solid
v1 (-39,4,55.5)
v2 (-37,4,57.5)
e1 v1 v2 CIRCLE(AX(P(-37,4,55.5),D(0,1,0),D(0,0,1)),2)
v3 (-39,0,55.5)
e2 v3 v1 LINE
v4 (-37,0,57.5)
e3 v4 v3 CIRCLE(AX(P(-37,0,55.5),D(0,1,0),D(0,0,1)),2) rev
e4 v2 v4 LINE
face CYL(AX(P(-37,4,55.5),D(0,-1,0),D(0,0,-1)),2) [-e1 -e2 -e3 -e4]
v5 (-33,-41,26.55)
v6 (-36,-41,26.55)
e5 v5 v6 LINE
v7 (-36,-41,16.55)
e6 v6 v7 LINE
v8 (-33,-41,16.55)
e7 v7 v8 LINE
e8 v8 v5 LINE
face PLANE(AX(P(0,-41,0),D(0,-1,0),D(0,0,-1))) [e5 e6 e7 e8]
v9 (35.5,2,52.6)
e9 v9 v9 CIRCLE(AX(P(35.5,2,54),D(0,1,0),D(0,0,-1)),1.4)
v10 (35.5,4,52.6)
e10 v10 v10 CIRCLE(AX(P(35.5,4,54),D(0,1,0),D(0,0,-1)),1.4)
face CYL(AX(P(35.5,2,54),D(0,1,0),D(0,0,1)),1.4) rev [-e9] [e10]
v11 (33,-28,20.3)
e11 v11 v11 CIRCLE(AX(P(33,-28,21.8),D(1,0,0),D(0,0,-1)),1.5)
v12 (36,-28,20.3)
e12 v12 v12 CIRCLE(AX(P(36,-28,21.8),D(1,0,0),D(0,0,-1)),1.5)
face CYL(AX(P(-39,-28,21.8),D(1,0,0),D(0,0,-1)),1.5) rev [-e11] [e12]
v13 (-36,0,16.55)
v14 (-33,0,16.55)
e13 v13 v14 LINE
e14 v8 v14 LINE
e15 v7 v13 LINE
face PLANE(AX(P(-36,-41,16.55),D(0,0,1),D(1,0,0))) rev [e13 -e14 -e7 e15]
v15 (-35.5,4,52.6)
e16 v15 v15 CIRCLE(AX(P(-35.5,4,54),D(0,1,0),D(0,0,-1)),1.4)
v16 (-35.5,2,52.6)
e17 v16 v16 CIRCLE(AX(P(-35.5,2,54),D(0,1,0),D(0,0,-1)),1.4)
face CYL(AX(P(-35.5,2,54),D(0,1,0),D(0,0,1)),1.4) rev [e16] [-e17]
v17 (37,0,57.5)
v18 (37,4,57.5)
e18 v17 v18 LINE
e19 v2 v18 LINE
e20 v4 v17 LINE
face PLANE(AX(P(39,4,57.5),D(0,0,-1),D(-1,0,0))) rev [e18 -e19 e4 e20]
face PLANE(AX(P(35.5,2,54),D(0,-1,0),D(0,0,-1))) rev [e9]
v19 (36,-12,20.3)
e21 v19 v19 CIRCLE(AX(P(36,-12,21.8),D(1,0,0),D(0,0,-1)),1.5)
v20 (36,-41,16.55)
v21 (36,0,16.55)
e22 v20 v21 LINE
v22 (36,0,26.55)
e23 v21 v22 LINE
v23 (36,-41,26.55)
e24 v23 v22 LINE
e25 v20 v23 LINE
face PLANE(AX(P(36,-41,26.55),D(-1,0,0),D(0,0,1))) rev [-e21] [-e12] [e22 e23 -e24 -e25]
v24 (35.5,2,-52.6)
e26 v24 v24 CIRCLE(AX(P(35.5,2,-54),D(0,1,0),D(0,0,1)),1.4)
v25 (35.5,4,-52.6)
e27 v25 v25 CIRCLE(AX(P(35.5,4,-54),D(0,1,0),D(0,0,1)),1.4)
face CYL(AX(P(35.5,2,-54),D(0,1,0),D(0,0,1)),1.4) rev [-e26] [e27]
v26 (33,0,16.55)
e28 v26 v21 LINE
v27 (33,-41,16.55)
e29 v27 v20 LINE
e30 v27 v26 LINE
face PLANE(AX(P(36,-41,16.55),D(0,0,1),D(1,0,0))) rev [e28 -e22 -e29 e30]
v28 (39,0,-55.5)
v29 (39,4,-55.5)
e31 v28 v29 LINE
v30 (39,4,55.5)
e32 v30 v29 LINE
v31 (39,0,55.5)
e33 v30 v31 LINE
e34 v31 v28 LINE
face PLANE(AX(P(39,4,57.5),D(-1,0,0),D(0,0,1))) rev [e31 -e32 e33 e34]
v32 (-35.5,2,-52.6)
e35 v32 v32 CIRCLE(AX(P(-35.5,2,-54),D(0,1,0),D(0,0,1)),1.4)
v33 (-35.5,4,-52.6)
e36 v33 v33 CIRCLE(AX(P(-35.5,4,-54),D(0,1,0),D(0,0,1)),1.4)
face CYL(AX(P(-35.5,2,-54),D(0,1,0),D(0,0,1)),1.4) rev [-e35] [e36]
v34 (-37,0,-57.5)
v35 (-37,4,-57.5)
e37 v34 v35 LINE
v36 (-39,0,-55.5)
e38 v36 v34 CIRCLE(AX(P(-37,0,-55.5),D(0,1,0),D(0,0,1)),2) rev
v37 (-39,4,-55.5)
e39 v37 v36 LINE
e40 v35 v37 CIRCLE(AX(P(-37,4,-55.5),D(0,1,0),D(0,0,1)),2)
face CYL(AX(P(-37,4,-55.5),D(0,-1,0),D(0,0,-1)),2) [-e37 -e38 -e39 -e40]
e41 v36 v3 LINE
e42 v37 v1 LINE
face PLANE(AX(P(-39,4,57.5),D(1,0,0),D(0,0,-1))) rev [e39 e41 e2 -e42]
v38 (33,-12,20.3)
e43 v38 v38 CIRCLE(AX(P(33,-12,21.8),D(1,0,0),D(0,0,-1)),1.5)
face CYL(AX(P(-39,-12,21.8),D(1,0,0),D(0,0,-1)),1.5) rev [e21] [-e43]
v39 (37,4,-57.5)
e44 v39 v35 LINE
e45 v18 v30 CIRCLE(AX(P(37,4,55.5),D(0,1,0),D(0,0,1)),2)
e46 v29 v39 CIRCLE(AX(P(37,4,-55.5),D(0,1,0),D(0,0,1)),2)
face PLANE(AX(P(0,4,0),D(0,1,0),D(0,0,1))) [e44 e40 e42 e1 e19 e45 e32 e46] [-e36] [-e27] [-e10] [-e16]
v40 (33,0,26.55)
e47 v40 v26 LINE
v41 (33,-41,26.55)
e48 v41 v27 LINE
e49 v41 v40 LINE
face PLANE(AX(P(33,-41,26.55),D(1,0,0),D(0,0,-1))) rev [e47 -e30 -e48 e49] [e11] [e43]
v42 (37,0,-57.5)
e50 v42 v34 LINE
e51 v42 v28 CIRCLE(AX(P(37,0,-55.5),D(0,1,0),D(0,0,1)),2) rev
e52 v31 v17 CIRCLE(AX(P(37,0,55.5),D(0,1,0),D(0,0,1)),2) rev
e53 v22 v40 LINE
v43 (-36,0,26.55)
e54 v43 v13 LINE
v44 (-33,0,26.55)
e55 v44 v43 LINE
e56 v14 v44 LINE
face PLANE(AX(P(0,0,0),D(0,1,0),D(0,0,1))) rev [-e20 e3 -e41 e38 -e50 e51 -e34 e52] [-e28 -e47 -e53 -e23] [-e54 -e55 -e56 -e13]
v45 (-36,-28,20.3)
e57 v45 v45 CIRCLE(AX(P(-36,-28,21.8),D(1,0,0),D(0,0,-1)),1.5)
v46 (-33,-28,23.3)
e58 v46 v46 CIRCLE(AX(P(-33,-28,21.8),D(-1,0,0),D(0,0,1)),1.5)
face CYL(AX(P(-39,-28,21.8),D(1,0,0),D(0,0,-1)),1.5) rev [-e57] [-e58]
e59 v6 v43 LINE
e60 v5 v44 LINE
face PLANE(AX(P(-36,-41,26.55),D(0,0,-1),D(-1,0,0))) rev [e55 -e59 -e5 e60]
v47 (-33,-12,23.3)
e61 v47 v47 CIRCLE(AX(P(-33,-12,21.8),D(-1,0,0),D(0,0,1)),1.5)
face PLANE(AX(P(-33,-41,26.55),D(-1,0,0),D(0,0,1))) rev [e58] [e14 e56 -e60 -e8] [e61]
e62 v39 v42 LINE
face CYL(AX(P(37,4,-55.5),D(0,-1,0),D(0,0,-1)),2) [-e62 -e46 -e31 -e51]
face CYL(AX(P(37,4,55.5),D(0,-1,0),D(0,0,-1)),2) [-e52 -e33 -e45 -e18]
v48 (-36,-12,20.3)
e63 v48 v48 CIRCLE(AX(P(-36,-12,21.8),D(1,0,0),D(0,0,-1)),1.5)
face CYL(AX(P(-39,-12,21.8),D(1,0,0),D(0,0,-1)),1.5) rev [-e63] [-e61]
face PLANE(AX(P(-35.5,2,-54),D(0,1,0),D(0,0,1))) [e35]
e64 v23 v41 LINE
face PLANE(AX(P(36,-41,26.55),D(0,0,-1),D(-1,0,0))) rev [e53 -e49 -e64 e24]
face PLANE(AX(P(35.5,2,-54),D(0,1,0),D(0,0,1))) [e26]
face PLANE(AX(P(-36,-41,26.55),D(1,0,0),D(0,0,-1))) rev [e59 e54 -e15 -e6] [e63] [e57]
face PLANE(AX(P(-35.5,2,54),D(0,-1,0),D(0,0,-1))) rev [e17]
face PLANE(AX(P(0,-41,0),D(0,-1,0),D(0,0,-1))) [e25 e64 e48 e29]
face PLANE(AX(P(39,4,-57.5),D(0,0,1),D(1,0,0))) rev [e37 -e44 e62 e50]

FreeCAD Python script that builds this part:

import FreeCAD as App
import Part
import Sketcher


def edges_at(feature, points):
    """Names of the edges that pass closest to the given points."""
    edges = feature.Shape.Edges
    near = lambda p: min(range(len(edges)), key=lambda i: edges[i].distToShape(Part.Vertex(*p))[0])
    return sorted({f"Edge{near(p) + 1}" for p in points})


def add_polygon(sketch, points):
    """Adds a closed chain of lines whose ends are joined by coincident constraints."""
    first, n = sketch.GeometryCount, len(points)
    for a, b in zip(points, points[1:] + points[:1]):
        sketch.addGeometry(Part.LineSegment(App.Vector(*a, 0), App.Vector(*b, 0)), False)
    for i in range(n):
        sketch.addConstraint(Sketcher.Constraint("Coincident", first + i, 2, first + (i + 1) % n, 1))

doc = App.newDocument("Part")
body = doc.addObject("PartDesign::Body", "Body")

# Sketch on XZ plane
sketch1 = body.newObject("Sketcher::SketchObject", "Sketch")
sketch1.AttachmentSupport = (doc.getObject("XZ_Plane"), [""])
sketch1.MapMode = "FlatFace"
add_polygon(sketch1, [(-39, -58), (-39, 58), (39, 58), (39, -58)])  # lines 0-3
sketch1.addConstraint([
    Sketcher.Constraint("Vertical", 0),
    Sketcher.Constraint("Horizontal", 1),
    Sketcher.Constraint("Vertical", 2),
    Sketcher.Constraint("Horizontal", 3),
    Sketcher.Constraint("Symmetric", 0, 2, 2, 2, -1, 1),
    Sketcher.Constraint("DistanceX", 1, 1, 1, 2, 78.0),
    Sketcher.Constraint("DistanceY", 0, 1, 0, 2, 115.0),
])
pad1 = body.newObject("PartDesign::Pad", "Pad")
pad1.Profile = sketch1
pad1.Length = 4
pad1.Reversed = True

# Sketch on XZ plane
sketch2 = body.newObject("Sketcher::SketchObject", "Sketch001")
sketch2.AttachmentSupport = (doc.getObject("XZ_Plane"), [""])
sketch2.MapMode = "FlatFace"
sketch2.AttachmentOffset = App.Placement(App.Vector(0, 0, -4), App.Rotation())
sketch2.addGeometry([
    Part.Circle(App.Vector(-35.5, -54, 0), App.Vector(0, 0, 1), 1.4),
    Part.Circle(App.Vector(35.5, -54, 0), App.Vector(0, 0, 1), 1.4),
    Part.Circle(App.Vector(35.5, 54, 0), App.Vector(0, 0, 1), 1.4),
    Part.Circle(App.Vector(-35.5, 54, 0), App.Vector(0, 0, 1), 1.4),
], False)
sketch2.addConstraint([
    Sketcher.Constraint("Equal", 0, 1),
    Sketcher.Constraint("Equal", 1, 2),
    Sketcher.Constraint("Equal", 2, 3),
    Sketcher.Constraint("Symmetric", 0, 3, 2, 3, -1, 1),
    Sketcher.Constraint("Symmetric", 1, 3, 3, 3, -1, 1),
    Sketcher.Constraint("Symmetric", 0, 3, 1, 3, -2),
    Sketcher.Constraint("Diameter", 0, 2.8),
    Sketcher.Constraint("DistanceY", 0, 3, -1, 1, 54.0),
    Sketcher.Constraint("DistanceX", 0, 3, 1, 3, 71.0),
])
pocket1 = body.newObject("PartDesign::Pocket", "Pocket")
pocket1.Profile = sketch2
pocket1.Length = 2
pocket1.Reversed = True

# Sketch on XZ plane
sketch3 = body.newObject("Sketcher::SketchObject", "Sketch002")
sketch3.AttachmentSupport = (doc.getObject("XZ_Plane"), [""])
sketch3.MapMode = "FlatFace"
add_polygon(sketch3, [(-36, 26.6), (-36, 16.6), (-33, 16.6), (-33, 26.6)])  # lines 0-3
add_polygon(sketch3, [(33, 26.6), (33, 16.6), (36, 16.6), (36, 26.6)])  # lines 4-7
sketch3.addConstraint([
    Sketcher.Constraint("Vertical", 0),
    Sketcher.Constraint("Horizontal", 1),
    Sketcher.Constraint("Vertical", 2),
    Sketcher.Constraint("Horizontal", 3),
    Sketcher.Constraint("Vertical", 4),
    Sketcher.Constraint("Horizontal", 5),
    Sketcher.Constraint("Vertical", 6),
    Sketcher.Constraint("Horizontal", 7),
    Sketcher.Constraint("Symmetric", 1, 2, 4, 2, -2),
    Sketcher.Constraint("Symmetric", 3, 2, 6, 2, -2),
    Sketcher.Constraint("DistanceX", 1, 1, 1, 2, 3.0),
    Sketcher.Constraint("DistanceY", 0, 2, 0, 1, 10.0),
    Sketcher.Constraint("DistanceX", 0, 2, -1, 1, 36.0),
    Sketcher.Constraint("DistanceY", -1, 1, 0, 2, 16.55),
])
pad2 = body.newObject("PartDesign::Pad", "Pad001")
pad2.Profile = sketch3
pad2.Length = 41

# Sketch on YZ plane
sketch4 = body.newObject("Sketcher::SketchObject", "Sketch003")
sketch4.AttachmentSupport = (doc.getObject("YZ_Plane"), [""])
sketch4.MapMode = "FlatFace"
sketch4.AttachmentOffset = App.Placement(App.Vector(0, 0, 36), App.Rotation())
sketch4.addGeometry([
    Part.Circle(App.Vector(-12, 21.8, 0), App.Vector(0, 0, 1), 1.5),
    Part.Circle(App.Vector(-28, 21.8, 0), App.Vector(0, 0, 1), 1.5),
], False)
sketch4.addConstraint([
    Sketcher.Constraint("Equal", 0, 1),
    Sketcher.Constraint("Horizontal", 0, 3, 1, 3),
    Sketcher.Constraint("Diameter", 0, 3.0),
    Sketcher.Constraint("DistanceX", 0, 3, -1, 1, 12.0),
    Sketcher.Constraint("DistanceX", 1, 3, -1, 1, 28.0),
    Sketcher.Constraint("DistanceY", -1, 1, 0, 3, 21.8),
])
pocket2 = body.newObject("PartDesign::Pocket", "Pocket001")
pocket2.Profile = sketch4
pocket2.Type = "ThroughAll"
doc.recompute()

fillet = body.newObject("PartDesign::Fillet", "Fillet")
fillet.Base = (pocket2, edges_at(pocket2, [
    (-39, 2, -57.5),
    (39, 2, -57.5),
    (39, 2, 57.5),
    (-39, 2, 57.5),
]))
fillet.Radius = 2

doc.recompute()
